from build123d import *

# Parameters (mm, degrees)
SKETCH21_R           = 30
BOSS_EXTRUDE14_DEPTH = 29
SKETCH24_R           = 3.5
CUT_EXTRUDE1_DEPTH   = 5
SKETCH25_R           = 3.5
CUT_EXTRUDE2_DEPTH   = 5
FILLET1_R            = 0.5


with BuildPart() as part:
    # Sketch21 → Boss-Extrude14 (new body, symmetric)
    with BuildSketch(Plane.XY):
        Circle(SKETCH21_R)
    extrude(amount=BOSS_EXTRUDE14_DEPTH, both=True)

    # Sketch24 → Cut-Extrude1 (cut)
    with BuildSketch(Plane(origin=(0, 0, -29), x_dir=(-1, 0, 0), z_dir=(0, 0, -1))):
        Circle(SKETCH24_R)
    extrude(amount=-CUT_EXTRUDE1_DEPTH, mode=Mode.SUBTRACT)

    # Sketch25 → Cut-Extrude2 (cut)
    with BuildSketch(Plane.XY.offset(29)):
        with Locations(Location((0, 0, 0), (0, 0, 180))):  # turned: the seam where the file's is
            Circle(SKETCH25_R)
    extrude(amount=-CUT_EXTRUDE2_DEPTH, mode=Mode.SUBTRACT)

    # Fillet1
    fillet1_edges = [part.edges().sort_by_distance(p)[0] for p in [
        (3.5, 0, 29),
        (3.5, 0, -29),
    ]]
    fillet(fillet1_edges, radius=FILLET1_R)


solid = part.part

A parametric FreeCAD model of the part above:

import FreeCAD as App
import Part
import Sketcher

V = App.Vector
Q = App.Units.Quantity


def edges_at(feature, points):
    """Names of the edges that pass closest to the given points."""
    edges = feature.Shape.Edges
    near = lambda p: min(range(len(edges)), key=lambda i: edges[i].distToShape(Part.Vertex(*p))[0])
    return sorted({f"Edge{near(p) + 1}" for p in points})

doc = App.newDocument("Part")
body = doc.addObject("PartDesign::Body", "Body")

sketch1 = doc.addObject("Sketcher::SketchObject", "Sketch")
body.addObject(sketch1)
sketch1.AttachmentSupport = (doc.XY_Plane, [""])
sketch1.MapMode = "FlatFace"
sketch1.addGeometry(Part.Circle(V(0, 0, 0), V(0, 0, 1), 30), False)
sketch1.addConstraint([
    Sketcher.Constraint("Coincident", 0, 3, -1, 1),
    Sketcher.Constraint("Diameter", 0, Q("60 mm")),
])
pad1 = doc.addObject("PartDesign::Pad", "Pad")
body.addObject(pad1)
pad1.Profile = sketch1
pad1.Length = 58
pad1.Midplane = True

sketch2 = doc.addObject("Sketcher::SketchObject", "Sketch001")
body.addObject(sketch2)
sketch2.AttachmentSupport = (doc.XY_Plane, [""])
sketch2.MapMode = "FlatFace"
sketch2.AttachmentOffset = App.Placement(V(0, 0, -29), App.Rotation())
sketch2.addGeometry(Part.Circle(V(0, 0, 0), V(0, 0, 1), 3.5), False)
sketch2.addConstraint([
    Sketcher.Constraint("Coincident", 0, 3, -1, 1),
    Sketcher.Constraint("Diameter", 0, Q("7 mm")),
])
pocket1 = doc.addObject("PartDesign::Pocket", "Pocket")
body.addObject(pocket1)
pocket1.Profile = sketch2
pocket1.Length = 5
pocket1.Reversed = True

sketch3 = doc.addObject("Sketcher::SketchObject", "Sketch002")
body.addObject(sketch3)
sketch3.AttachmentSupport = (doc.XY_Plane, [""])
sketch3.MapMode = "FlatFace"
sketch3.AttachmentOffset = App.Placement(V(0, 0, 29), App.Rotation())
sketch3.addGeometry(Part.Circle(V(0, 0, 0), V(0, 0, 1), 3.5), False)
sketch3.addConstraint([
    Sketcher.Constraint("Coincident", 0, 3, -1, 1),
    Sketcher.Constraint("Diameter", 0, Q("7 mm")),
])
pocket2 = doc.addObject("PartDesign::Pocket", "Pocket001")
body.addObject(pocket2)
pocket2.Profile = sketch3
pocket2.Length = 5
doc.recompute()

fillet = doc.addObject("PartDesign::Fillet", "Fillet")
body.addObject(fillet)
fillet.Base = (pocket2, edges_at(pocket2, [(3.5, 0, 29), (3.5, 0, -29)]))
fillet.Radius = 0.5

doc.recompute()
